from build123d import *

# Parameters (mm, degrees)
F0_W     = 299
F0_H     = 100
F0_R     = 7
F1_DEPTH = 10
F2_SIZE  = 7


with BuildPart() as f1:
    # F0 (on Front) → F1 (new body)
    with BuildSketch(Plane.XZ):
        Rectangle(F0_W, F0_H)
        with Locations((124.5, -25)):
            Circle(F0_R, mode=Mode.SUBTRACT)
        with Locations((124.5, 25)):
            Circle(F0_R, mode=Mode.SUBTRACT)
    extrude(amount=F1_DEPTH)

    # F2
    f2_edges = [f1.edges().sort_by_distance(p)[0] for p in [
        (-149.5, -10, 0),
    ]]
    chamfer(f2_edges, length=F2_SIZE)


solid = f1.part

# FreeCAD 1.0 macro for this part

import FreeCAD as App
import Part
import Sketcher
from FreeCAD import Vector


def edges_at(feature, points):
    """Names of the edges that pass closest to the given points."""
    edges = feature.Shape.Edges
    near = lambda p: min(range(len(edges)), key=lambda i: edges[i].distToShape(Part.Vertex(*p))[0])
    return sorted({f"Edge{near(p) + 1}" for p in points})

doc = App.newDocument("Part")
body = doc.addObject("PartDesign::Body", "Body")

sketch1 = body.newObject("Sketcher::SketchObject", "Sketch")
sketch1.AttachmentSupport = (doc.getObject("XZ_Plane"), [""])
sketch1.MapMode = "FlatFace"
sketch1.addGeometry([
    Part.LineSegment(Vector(-150, 50, 0), Vector(-150, -50, 0)),
    Part.LineSegment(Vector(-150, -50, 0), Vector(150, -50, 0)),
    Part.LineSegment(Vector(150, -50, 0), Vector(150, 50, 0)),
    Part.LineSegment(Vector(150, 50, 0), Vector(-150, 50, 0)),
    Part.Circle(Vector(124, -25, 0), Vector(0, 0, 1), 7),
    Part.Circle(Vector(124, 25, 0), Vector(0, 0, 1), 7),
], False)
sketch1.addConstraint([
    Sketcher.Constraint("Coincident", 0, 2, 1, 1),
    Sketcher.Constraint("Coincident", 1, 2, 2, 1),
    Sketcher.Constraint("Coincident", 2, 2, 3, 1),
    Sketcher.Constraint("Coincident", 3, 2, 0, 1),
    Sketcher.Constraint("Vertical", 0),
    Sketcher.Constraint("Horizontal", 1),
    Sketcher.Constraint("Vertical", 2),
    Sketcher.Constraint("Horizontal", 3),
    Sketcher.Constraint("Equal", 4, 5),
    Sketcher.Constraint("Symmetric", 0, 2, 2, 2, -1, 1),
    Sketcher.Constraint("Symmetric", 4, 3, 5, 3, -1),
    Sketcher.Constraint("Diameter", 4, 14.0),
    Sketcher.Constraint("DistanceX", 1, 1, 1, 2, 299.0),
    Sketcher.Constraint("DistanceY", 0, 2, 0, 1, 100.0),
    Sketcher.Constraint("DistanceY", 4, 3, -1, 1, 25.0),
    Sketcher.Constraint("DistanceX", 0, 2, 4, 3, 274.0),
])
pad1 = body.newObject("PartDesign::Pad", "Pad")
pad1.Profile = sketch1
pad1.Length = 10
doc.recompute()

chamfer = body.newObject("PartDesign::Chamfer", "Chamfer")
chamfer.Base = (pad1, edges_at(pad1, [(-149.5, -10, 0)]))
chamfer.Size = 7

doc.recompute()
